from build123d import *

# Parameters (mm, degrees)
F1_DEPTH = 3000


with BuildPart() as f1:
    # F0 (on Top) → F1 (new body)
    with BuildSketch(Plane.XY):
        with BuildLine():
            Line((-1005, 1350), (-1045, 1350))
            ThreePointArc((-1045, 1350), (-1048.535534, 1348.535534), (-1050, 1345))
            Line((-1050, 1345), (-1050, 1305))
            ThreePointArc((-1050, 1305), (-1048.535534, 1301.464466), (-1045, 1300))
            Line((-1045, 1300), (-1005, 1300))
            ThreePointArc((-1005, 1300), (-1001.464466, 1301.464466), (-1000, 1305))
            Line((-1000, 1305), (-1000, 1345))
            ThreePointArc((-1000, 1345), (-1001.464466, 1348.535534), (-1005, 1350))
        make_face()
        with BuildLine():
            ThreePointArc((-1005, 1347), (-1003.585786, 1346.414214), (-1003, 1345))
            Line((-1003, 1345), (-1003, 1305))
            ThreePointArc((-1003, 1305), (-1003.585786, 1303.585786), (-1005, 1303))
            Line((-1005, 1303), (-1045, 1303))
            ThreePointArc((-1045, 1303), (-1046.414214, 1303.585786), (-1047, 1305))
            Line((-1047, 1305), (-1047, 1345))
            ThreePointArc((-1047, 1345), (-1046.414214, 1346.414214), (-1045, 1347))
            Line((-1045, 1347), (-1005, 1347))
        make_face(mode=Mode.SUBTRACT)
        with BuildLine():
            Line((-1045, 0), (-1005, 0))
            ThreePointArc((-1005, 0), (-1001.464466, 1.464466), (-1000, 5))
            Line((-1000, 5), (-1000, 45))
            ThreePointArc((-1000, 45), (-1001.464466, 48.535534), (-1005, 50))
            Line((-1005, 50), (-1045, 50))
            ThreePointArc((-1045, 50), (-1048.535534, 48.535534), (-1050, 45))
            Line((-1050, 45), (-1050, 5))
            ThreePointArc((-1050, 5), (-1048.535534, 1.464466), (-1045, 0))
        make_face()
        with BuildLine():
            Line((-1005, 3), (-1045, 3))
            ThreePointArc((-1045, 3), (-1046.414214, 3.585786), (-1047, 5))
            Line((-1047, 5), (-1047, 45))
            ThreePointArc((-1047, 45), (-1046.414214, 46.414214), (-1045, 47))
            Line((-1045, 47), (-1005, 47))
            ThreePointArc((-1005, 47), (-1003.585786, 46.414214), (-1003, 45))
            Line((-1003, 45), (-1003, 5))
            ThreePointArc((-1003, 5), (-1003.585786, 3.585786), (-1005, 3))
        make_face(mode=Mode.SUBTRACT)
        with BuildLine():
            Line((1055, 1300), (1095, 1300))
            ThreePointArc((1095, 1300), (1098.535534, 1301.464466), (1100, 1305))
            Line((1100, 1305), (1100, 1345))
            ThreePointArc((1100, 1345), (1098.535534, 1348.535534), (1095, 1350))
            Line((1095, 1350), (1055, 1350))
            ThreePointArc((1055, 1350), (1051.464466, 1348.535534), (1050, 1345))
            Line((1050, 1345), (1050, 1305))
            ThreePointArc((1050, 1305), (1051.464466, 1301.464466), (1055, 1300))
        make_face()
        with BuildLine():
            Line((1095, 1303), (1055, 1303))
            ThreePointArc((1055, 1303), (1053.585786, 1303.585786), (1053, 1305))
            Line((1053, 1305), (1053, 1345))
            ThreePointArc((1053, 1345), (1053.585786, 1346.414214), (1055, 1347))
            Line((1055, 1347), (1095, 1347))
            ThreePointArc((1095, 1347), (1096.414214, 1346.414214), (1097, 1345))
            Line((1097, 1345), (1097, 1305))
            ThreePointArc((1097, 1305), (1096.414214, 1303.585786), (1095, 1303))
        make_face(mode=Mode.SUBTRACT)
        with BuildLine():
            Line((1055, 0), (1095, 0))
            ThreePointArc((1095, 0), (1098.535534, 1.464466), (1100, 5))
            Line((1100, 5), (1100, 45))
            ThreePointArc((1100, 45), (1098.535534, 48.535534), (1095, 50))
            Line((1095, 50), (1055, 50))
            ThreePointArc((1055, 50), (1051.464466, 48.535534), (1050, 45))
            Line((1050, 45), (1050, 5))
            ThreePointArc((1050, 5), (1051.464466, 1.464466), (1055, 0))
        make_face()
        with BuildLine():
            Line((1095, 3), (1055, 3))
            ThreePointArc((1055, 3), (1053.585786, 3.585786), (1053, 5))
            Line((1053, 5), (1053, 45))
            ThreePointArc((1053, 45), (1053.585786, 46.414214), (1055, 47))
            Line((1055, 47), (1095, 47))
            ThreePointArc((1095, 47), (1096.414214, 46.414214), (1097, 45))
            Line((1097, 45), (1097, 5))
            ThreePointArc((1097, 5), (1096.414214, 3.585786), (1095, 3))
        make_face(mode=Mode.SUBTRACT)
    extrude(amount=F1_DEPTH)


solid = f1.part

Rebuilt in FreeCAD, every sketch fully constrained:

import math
import FreeCAD as App
import Part
import Sketcher
from FreeCAD import Vector

doc = App.newDocument("Part")
body = doc.addObject("PartDesign::Body", "Body")
body.AllowCompound = True

# Sketch on XY plane
sketch1 = body.newObject("Sketcher::SketchObject", "Sketch")
sketch1.AttachmentSupport = (doc.getObject("XY_Plane"), [""])
sketch1.MapMode = "FlatFace"
sketch1.addGeometry([
    Part.LineSegment(Vector(-1005, 1350, 0), Vector(-1045, 1350, 0)),  # 0
    Part.ArcOfCircle(Part.Circle(Vector(-1045, 1345, 0), Vector(0, 0, 1), 5), math.radians(90), math.radians(180)),  # 1
    Part.LineSegment(Vector(-1050, 1345, 0), Vector(-1050, 1305, 0)),  # 2
    Part.ArcOfCircle(Part.Circle(Vector(-1045, 1305, 0), Vector(0, 0, 1), 5), math.radians(180), math.radians(270)),  # 3
    Part.LineSegment(Vector(-1045, 1300, 0), Vector(-1005, 1300, 0)),  # 4
    Part.ArcOfCircle(Part.Circle(Vector(-1005, 1305, 0), Vector(0, 0, 1), 5), math.radians(-90), math.radians(0)),  # 5
    Part.LineSegment(Vector(-1000, 1305, 0), Vector(-1000, 1345, 0)),  # 6
    Part.ArcOfCircle(Part.Circle(Vector(-1005, 1345, 0), Vector(0, 0, 1), 5), math.radians(0), math.radians(90)),  # 7
    Part.LineSegment(Vector(-1045, 1347, 0), Vector(-1005, 1347, 0)),  # 8
    Part.ArcOfCircle(Part.Circle(Vector(-1005, 1345, 0), Vector(0, 0, 1), 2), math.radians(0), math.radians(90)),  # 9
    Part.LineSegment(Vector(-1003, 1345, 0), Vector(-1003, 1305, 0)),  # 10
    Part.ArcOfCircle(Part.Circle(Vector(-1005, 1305, 0), Vector(0, 0, 1), 2), math.radians(-90), math.radians(0)),  # 11
    Part.LineSegment(Vector(-1005, 1303, 0), Vector(-1045, 1303, 0)),  # 12
    Part.ArcOfCircle(Part.Circle(Vector(-1045, 1305, 0), Vector(0, 0, 1), 2), math.radians(180), math.radians(270)),  # 13
    Part.LineSegment(Vector(-1047, 1305, 0), Vector(-1047, 1345, 0)),  # 14
    Part.ArcOfCircle(Part.Circle(Vector(-1045, 1345, 0), Vector(0, 0, 1), 2), math.radians(90), math.radians(180)),  # 15
    Part.LineSegment(Vector(-1045, 0, 0), Vector(-1005, 0, 0)),  # 16
    Part.ArcOfCircle(Part.Circle(Vector(-1005, 5, 0), Vector(0, 0, 1), 5), math.radians(-90), math.radians(0)),  # 17
    Part.LineSegment(Vector(-1000, 5, 0), Vector(-1000, 45, 0)),  # 18
    Part.ArcOfCircle(Part.Circle(Vector(-1005, 45, 0), Vector(0, 0, 1), 5), math.radians(0), math.radians(90)),  # 19
    Part.LineSegment(Vector(-1005, 50, 0), Vector(-1045, 50, 0)),  # 20
    Part.ArcOfCircle(Part.Circle(Vector(-1045, 45, 0), Vector(0, 0, 1), 5), math.radians(90), math.radians(180)),  # 21
    Part.LineSegment(Vector(-1050, 45, 0), Vector(-1050, 5, 0)),  # 22
    Part.ArcOfCircle(Part.Circle(Vector(-1045, 5, 0), Vector(0, 0, 1), 5), math.radians(180), math.radians(270)),  # 23
    Part.ArcOfCircle(Part.Circle(Vector(-1005, 5, 0), Vector(0, 0, 1), 2), math.radians(-90), math.radians(0)),  # 24
    Part.LineSegment(Vector(-1005, 3, 0), Vector(-1045, 3, 0)),  # 25
    Part.ArcOfCircle(Part.Circle(Vector(-1045, 5, 0), Vector(0, 0, 1), 2), math.radians(180), math.radians(270)),  # 26
    Part.LineSegment(Vector(-1047, 5, 0), Vector(-1047, 45, 0)),  # 27
    Part.ArcOfCircle(Part.Circle(Vector(-1045, 45, 0), Vector(0, 0, 1), 2), math.radians(90), math.radians(180)),  # 28
    Part.LineSegment(Vector(-1045, 47, 0), Vector(-1005, 47, 0)),  # 29
    Part.ArcOfCircle(Part.Circle(Vector(-1005, 45, 0), Vector(0, 0, 1), 2), math.radians(0), math.radians(90)),  # 30
    Part.LineSegment(Vector(-1003, 45, 0), Vector(-1003, 5, 0)),  # 31
    Part.LineSegment(Vector(1055, 1300, 0), Vector(1095, 1300, 0)),  # 32
    Part.ArcOfCircle(Part.Circle(Vector(1095, 1305, 0), Vector(0, 0, 1), 5), math.radians(-90), math.radians(0)),  # 33
    Part.LineSegment(Vector(1100, 1305, 0), Vector(1100, 1345, 0)),  # 34
    Part.ArcOfCircle(Part.Circle(Vector(1095, 1345, 0), Vector(0, 0, 1), 5), math.radians(0), math.radians(90)),  # 35
    Part.LineSegment(Vector(1095, 1350, 0), Vector(1055, 1350, 0)),  # 36
    Part.ArcOfCircle(Part.Circle(Vector(1055, 1345, 0), Vector(0, 0, 1), 5), math.radians(90), math.radians(180)),  # 37
    Part.LineSegment(Vector(1050, 1345, 0), Vector(1050, 1305, 0)),  # 38
    Part.ArcOfCircle(Part.Circle(Vector(1055, 1305, 0), Vector(0, 0, 1), 5), math.radians(180), math.radians(270)),  # 39
    Part.ArcOfCircle(Part.Circle(Vector(1095, 1305, 0), Vector(0, 0, 1), 2), math.radians(-90), math.radians(0)),  # 40
    Part.LineSegment(Vector(1095, 1303, 0), Vector(1055, 1303, 0)),  # 41
    Part.ArcOfCircle(Part.Circle(Vector(1055, 1305, 0), Vector(0, 0, 1), 2), math.radians(180), math.radians(270)),  # 42
    Part.LineSegment(Vector(1053, 1305, 0), Vector(1053, 1345, 0)),  # 43
    Part.ArcOfCircle(Part.Circle(Vector(1055, 1345, 0), Vector(0, 0, 1), 2), math.radians(90), math.radians(180)),  # 44
    Part.LineSegment(Vector(1055, 1347, 0), Vector(1095, 1347, 0)),  # 45
    Part.ArcOfCircle(Part.Circle(Vector(1095, 1345, 0), Vector(0, 0, 1), 2), math.radians(0), math.radians(90)),  # 46
    Part.LineSegment(Vector(1097, 1345, 0), Vector(1097, 1305, 0)),  # 47
    Part.LineSegment(Vector(1055, 0, 0), Vector(1095, 0, 0)),  # 48
    Part.ArcOfCircle(Part.Circle(Vector(1095, 5, 0), Vector(0, 0, 1), 5), math.radians(-90), math.radians(0)),  # 49
    Part.LineSegment(Vector(1100, 5, 0), Vector(1100, 45, 0)),  # 50
    Part.ArcOfCircle(Part.Circle(Vector(1095, 45, 0), Vector(0, 0, 1), 5), math.radians(0), math.radians(90)),  # 51
    Part.LineSegment(Vector(1095, 50, 0), Vector(1055, 50, 0)),  # 52
    Part.ArcOfCircle(Part.Circle(Vector(1055, 45, 0), Vector(0, 0, 1), 5), math.radians(90), math.radians(180)),  # 53
    Part.LineSegment(Vector(1050, 45, 0), Vector(1050, 5, 0)),  # 54
    Part.ArcOfCircle(Part.Circle(Vector(1055, 5, 0), Vector(0, 0, 1), 5), math.radians(180), math.radians(270)),  # 55
    Part.ArcOfCircle(Part.Circle(Vector(1095, 5, 0), Vector(0, 0, 1), 2), math.radians(-90), math.radians(0)),  # 56
    Part.LineSegment(Vector(1095, 3, 0), Vector(1055, 3, 0)),  # 57
    Part.ArcOfCircle(Part.Circle(Vector(1055, 5, 0), Vector(0, 0, 1), 2), math.radians(180), math.radians(270)),  # 58
    Part.LineSegment(Vector(1053, 5, 0), Vector(1053, 45, 0)),  # 59
    Part.ArcOfCircle(Part.Circle(Vector(1055, 45, 0), Vector(0, 0, 1), 2), math.radians(90), math.radians(180)),  # 60
    Part.LineSegment(Vector(1055, 47, 0), Vector(1095, 47, 0)),  # 61
    Part.ArcOfCircle(Part.Circle(Vector(1095, 45, 0), Vector(0, 0, 1), 2), math.radians(0), math.radians(90)),  # 62
    Part.LineSegment(Vector(1097, 45, 0), Vector(1097, 5, 0)),  # 63
], False)
sketch1.addConstraint([
    Sketcher.Constraint("Tangent", 0, 2, 1, 1),
    Sketcher.Constraint("Tangent", 1, 2, 2, 1),
    Sketcher.Constraint("Tangent", 2, 2, 3, 1),
    Sketcher.Constraint("Tangent", 3, 2, 4, 1),
    Sketcher.Constraint("Tangent", 4, 2, 5, 1),
    Sketcher.Constraint("Tangent", 5, 2, 6, 1),
    Sketcher.Constraint("Tangent", 6, 2, 7, 1),
    Sketcher.Constraint("Tangent", 7, 2, 0, 1),
    Sketcher.Constraint("Tangent", 8, 2, 9, 2),
    Sketcher.Constraint("Tangent", 9, 1, 10, 1),
    Sketcher.Constraint("Tangent", 10, 2, 11, 2),
    Sketcher.Constraint("Tangent", 11, 1, 12, 1),
    Sketcher.Constraint("Tangent", 12, 2, 13, 2),
    Sketcher.Constraint("Tangent", 13, 1, 14, 1),
    Sketcher.Constraint("Tangent", 14, 2, 15, 2),
    Sketcher.Constraint("Tangent", 15, 1, 8, 1),
    Sketcher.Constraint("Tangent", 16, 2, 17, 1),
    Sketcher.Constraint("Tangent", 17, 2, 18, 1),
    Sketcher.Constraint("Tangent", 18, 2, 19, 1),
    Sketcher.Constraint("Tangent", 19, 2, 20, 1),
    Sketcher.Constraint("Tangent", 20, 2, 21, 1),
    Sketcher.Constraint("Tangent", 21, 2, 22, 1),
    Sketcher.Constraint("Tangent", 22, 2, 23, 1),
    Sketcher.Constraint("Tangent", 23, 2, 16, 1),
    Sketcher.Constraint("Tangent", 24, 1, 25, 1),
    Sketcher.Constraint("Tangent", 25, 2, 26, 2),
    Sketcher.Constraint("Tangent", 26, 1, 27, 1),
    Sketcher.Constraint("Tangent", 27, 2, 28, 2),
    Sketcher.Constraint("Tangent", 28, 1, 29, 1),
    Sketcher.Constraint("Tangent", 29, 2, 30, 2),
    Sketcher.Constraint("Tangent", 30, 1, 31, 1),
    Sketcher.Constraint("Tangent", 31, 2, 24, 2),
    Sketcher.Constraint("Tangent", 32, 2, 33, 1),
    Sketcher.Constraint("Tangent", 33, 2, 34, 1),
    Sketcher.Constraint("Tangent", 34, 2, 35, 1),
    Sketcher.Constraint("Tangent", 35, 2, 36, 1),
    Sketcher.Constraint("Tangent", 36, 2, 37, 1),
    Sketcher.Constraint("Tangent", 37, 2, 38, 1),
    Sketcher.Constraint("Tangent", 38, 2, 39, 1),
    Sketcher.Constraint("Tangent", 39, 2, 32, 1),
    Sketcher.Constraint("Tangent", 40, 1, 41, 1),
    Sketcher.Constraint("Tangent", 41, 2, 42, 2),
    Sketcher.Constraint("Tangent", 42, 1, 43, 1),
    Sketcher.Constraint("Tangent", 43, 2, 44, 2),
    Sketcher.Constraint("Tangent", 44, 1, 45, 1),
    Sketcher.Constraint("Tangent", 45, 2, 46, 2),
    Sketcher.Constraint("Tangent", 46, 1, 47, 1),
    Sketcher.Constraint("Tangent", 47, 2, 40, 2),
    Sketcher.Constraint("Tangent", 48, 2, 49, 1),
    Sketcher.Constraint("Tangent", 49, 2, 50, 1),
    Sketcher.Constraint("Tangent", 50, 2, 51, 1),
    Sketcher.Constraint("Tangent", 51, 2, 52, 1),
    Sketcher.Constraint("Tangent", 52, 2, 53, 1),
    Sketcher.Constraint("Tangent", 53, 2, 54, 1),
    Sketcher.Constraint("Tangent", 54, 2, 55, 1),
    Sketcher.Constraint("Tangent", 55, 2, 48, 1),
    Sketcher.Constraint("Tangent", 56, 1, 57, 1),
    Sketcher.Constraint("Tangent", 57, 2, 58, 2),
    Sketcher.Constraint("Tangent", 58, 1, 59, 1),
    Sketcher.Constraint("Tangent", 59, 2, 60, 2),
    Sketcher.Constraint("Tangent", 60, 1, 61, 1),
    Sketcher.Constraint("Tangent", 61, 2, 62, 2),
    Sketcher.Constraint("Tangent", 62, 1, 63, 1),
    Sketcher.Constraint("Tangent", 63, 2, 56, 2),
    Sketcher.Constraint("Horizontal", 0),
    Sketcher.Constraint("Vertical", 2),
    Sketcher.Constraint("Horizontal", 4),
    Sketcher.Constraint("Vertical", 6),
    Sketcher.Constraint("Horizontal", 8),
    Sketcher.Constraint("Vertical", 10),
    Sketcher.Constraint("Horizontal", 12),
    Sketcher.Constraint("Vertical", 14),
    Sketcher.Constraint("Horizontal", 16),
    Sketcher.Constraint("Vertical", 18),
    Sketcher.Constraint("Horizontal", 20),
    Sketcher.Constraint("Vertical", 22),
    Sketcher.Constraint("Horizontal", 25),
    Sketcher.Constraint("Vertical", 27),
    Sketcher.Constraint("Horizontal", 29),
    Sketcher.Constraint("Vertical", 31),
    Sketcher.Constraint("Horizontal", 32),
    Sketcher.Constraint("Vertical", 34),
    Sketcher.Constraint("Horizontal", 36),
    Sketcher.Constraint("Vertical", 38),
    Sketcher.Constraint("Horizontal", 41),
    Sketcher.Constraint("Vertical", 43),
    Sketcher.Constraint("Horizontal", 45),
    Sketcher.Constraint("Vertical", 47),
    Sketcher.Constraint("Horizontal", 48),
    Sketcher.Constraint("Vertical", 50),
    Sketcher.Constraint("Horizontal", 52),
    Sketcher.Constraint("Vertical", 54),
    Sketcher.Constraint("Horizontal", 57),
    Sketcher.Constraint("Vertical", 59),
    Sketcher.Constraint("Horizontal", 61),
    Sketcher.Constraint("Vertical", 63),
    Sketcher.Constraint("Coincident", 9, 3, 7, 3),
    Sketcher.Constraint("Coincident", 11, 3, 5, 3),
    Sketcher.Constraint("Coincident", 13, 3, 3, 3),
    Sketcher.Constraint("Coincident", 24, 3, 17, 3),
    Sketcher.Constraint("Coincident", 26, 3, 23, 3),
    Sketcher.Constraint("Coincident", 28, 3, 21, 3),
    Sketcher.Constraint("Coincident", 40, 3, 33, 3),
    Sketcher.Constraint("Coincident", 42, 3, 39, 3),
    Sketcher.Constraint("Coincident", 44, 3, 37, 3),
    Sketcher.Constraint("Coincident", 56, 3, 49, 3),
    Sketcher.Constraint("Coincident", 58, 3, 55, 3),
    Sketcher.Constraint("Coincident", 60, 3, 53, 3),
    Sketcher.Constraint("Equal", 1, 3),
    Sketcher.Constraint("Equal", 3, 5),
    Sketcher.Constraint("Equal", 5, 7),
    Sketcher.Constraint("Equal", 13, 15),
    Sketcher.Constraint("Equal", 7, 17),
    Sketcher.Constraint("Equal", 17, 19),
    Sketcher.Constraint("Equal", 19, 21),
    Sketcher.Constraint("Equal", 21, 23),
    Sketcher.Constraint("Equal", 15, 24),
    Sketcher.Constraint("Equal", 28, 30),
    Sketcher.Constraint("Equal", 23, 33),
    Sketcher.Constraint("Equal", 33, 35),
    Sketcher.Constraint("Equal", 35, 37),
    Sketcher.Constraint("Equal", 37, 39),
    Sketcher.Constraint("Equal", 30, 40),
    Sketcher.Constraint("Equal", 44, 46),
    Sketcher.Constraint("Equal", 39, 49),
    Sketcher.Constraint("Equal", 49, 51),
    Sketcher.Constraint("Equal", 51, 53),
    Sketcher.Constraint("Equal", 53, 55),
    Sketcher.Constraint("Equal", 46, 56),
    Sketcher.Constraint("Equal", 60, 62),
    Sketcher.Constraint("Symmetric", 1, 2, 37, 2, -2),
    Sketcher.Constraint("Symmetric", 21, 2, 53, 2, -2),
    Sketcher.Constraint("PointOnObject", 16, 2, -1),
    Sketcher.Constraint("PointOnObject", 48, 2, -1),
    Sketcher.Constraint("Horizontal", 13, 3, 33, 3),
    Sketcher.Constraint("Vertical", 11, 3, 17, 3),
    Sketcher.Constraint("Vertical", 15, 3, 21, 3),
    Sketcher.Constraint("Vertical", 46, 3, 49, 3),
    Sketcher.Constraint("Equal", 29, 32),
    Sketcher.Constraint("Equal", 61, 2),
    Sketcher.Constraint("Equal", 14, 18),
    Sketcher.Constraint("Radius", 1, 5.0),
    Sketcher.Constraint("Radius", 9, 1.999999),
    Sketcher.Constraint("DistanceX", 0, 2, 0, 1, 40.0),
    Sketcher.Constraint("DistanceX", 1, 3, -1, 1, 1045.0),
    Sketcher.Constraint("DistanceY", -1, 1, 1, 3, 1345.0),
])
pad1 = body.newObject("PartDesign::Pad", "Pad")
pad1.Profile = sketch1
pad1.Length = 3000

doc.recompute()
